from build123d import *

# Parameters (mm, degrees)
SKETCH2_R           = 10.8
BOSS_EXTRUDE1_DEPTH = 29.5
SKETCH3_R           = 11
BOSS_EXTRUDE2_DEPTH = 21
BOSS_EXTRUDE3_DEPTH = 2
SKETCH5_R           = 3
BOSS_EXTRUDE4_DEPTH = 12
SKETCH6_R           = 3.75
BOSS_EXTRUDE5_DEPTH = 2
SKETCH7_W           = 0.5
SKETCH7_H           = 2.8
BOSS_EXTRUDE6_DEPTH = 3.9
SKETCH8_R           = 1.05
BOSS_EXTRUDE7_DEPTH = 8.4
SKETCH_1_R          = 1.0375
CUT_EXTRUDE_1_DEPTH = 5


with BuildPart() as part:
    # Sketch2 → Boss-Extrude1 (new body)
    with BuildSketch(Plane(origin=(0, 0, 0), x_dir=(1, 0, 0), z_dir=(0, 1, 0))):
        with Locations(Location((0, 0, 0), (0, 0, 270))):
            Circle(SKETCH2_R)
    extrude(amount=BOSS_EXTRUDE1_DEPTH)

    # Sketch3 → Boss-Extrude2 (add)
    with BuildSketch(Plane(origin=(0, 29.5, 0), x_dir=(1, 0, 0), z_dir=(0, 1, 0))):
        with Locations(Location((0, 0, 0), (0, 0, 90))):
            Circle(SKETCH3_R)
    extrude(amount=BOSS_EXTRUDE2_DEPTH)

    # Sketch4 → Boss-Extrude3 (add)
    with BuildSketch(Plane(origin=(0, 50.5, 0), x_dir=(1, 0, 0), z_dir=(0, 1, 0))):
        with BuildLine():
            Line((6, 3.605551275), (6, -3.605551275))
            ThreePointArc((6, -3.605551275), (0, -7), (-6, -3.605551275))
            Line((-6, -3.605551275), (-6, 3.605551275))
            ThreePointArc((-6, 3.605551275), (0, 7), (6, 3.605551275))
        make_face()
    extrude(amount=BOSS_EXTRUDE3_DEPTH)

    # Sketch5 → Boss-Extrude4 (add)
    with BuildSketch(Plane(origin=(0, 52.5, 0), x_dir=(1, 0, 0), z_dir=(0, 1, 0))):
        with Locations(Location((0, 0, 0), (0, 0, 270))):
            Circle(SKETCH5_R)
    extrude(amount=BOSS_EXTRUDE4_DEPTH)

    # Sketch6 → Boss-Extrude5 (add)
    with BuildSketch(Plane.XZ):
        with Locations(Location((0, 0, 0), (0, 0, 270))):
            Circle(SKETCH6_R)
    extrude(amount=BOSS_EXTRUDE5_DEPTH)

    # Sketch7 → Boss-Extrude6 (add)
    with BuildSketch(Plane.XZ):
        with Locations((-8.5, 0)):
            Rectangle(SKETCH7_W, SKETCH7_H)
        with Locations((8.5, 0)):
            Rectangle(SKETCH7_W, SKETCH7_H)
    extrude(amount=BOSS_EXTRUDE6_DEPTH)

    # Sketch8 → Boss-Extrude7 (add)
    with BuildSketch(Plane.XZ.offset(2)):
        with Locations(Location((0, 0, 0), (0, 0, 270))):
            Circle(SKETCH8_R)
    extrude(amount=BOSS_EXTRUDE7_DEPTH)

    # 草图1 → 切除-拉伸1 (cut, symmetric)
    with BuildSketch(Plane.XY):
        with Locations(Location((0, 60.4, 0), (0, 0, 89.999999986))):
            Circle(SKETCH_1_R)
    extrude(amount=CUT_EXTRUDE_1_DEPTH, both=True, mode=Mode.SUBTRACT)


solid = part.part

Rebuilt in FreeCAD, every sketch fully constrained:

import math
import FreeCAD as App
import Part
import Sketcher
from FreeCAD import Vector


def add_polygon(sketch, points):
    """Adds a closed chain of lines whose ends are joined by coincident constraints."""
    first, n = sketch.GeometryCount, len(points)
    for a, b in zip(points, points[1:] + points[:1]):
        sketch.addGeometry(Part.LineSegment(App.Vector(*a, 0), App.Vector(*b, 0)), False)
    for i in range(n):
        sketch.addConstraint(Sketcher.Constraint("Coincident", first + i, 2, first + (i + 1) % n, 1))

doc = App.newDocument("Part")
params = doc.addObject("Spreadsheet::Sheet", "Params")
for row, (alias, value) in enumerate([
    ("sketch1_diameter", "21.6 mm"),
    ("pad1_length", "29.5 mm"),
    ("sketch2_diameter", "22 mm"),
    ("pad2_length", "21 mm"),
    ("sketch3_radius", "7 mm"),
    ("pad3_length", "2 mm"),
    ("sketch4_diameter", "6 mm"),
    ("pad4_length", "12 mm"),
    ("sketch5_diameter", "7.5 mm"),
    ("pad5_length", "2 mm"),
    ("sketch6_width", "0.5 mm"),
    ("sketch6_height", "2.8 mm"),
    ("pad6_length", "3.9 mm"),
    ("sketch7_diameter", "2.1 mm"),
    ("pad7_length", "8.4 mm"),
    ("pocket1_length", "10 mm"),
], start=1):
    params.set(f"A{row}", alias)
    params.set(f"B{row}", "=" + value)
    params.setAlias(f"B{row}", alias)

body = doc.addObject("PartDesign::Body", "Body")

sketch1 = body.newObject("Sketcher::SketchObject", "Sketch")
sketch1.AttachmentSupport = (doc.getObject("XZ_Plane"), [""])
sketch1.MapMode = "FlatFace"
sketch1.addGeometry(Part.Circle(Vector(0, 0, 0), Vector(0, 0, 1), 11), False)
sketch1.addConstraint([
    Sketcher.Constraint("Coincident", 0, 3, -1, 1),
    Sketcher.Constraint("Diameter", 0, 21.6),
])
sketch1.setExpression("Constraints[1]", "Params.sketch1_diameter")
pad1 = body.newObject("PartDesign::Pad", "Pad")
pad1.Profile = sketch1
pad1.setExpression("Length", "Params.pad1_length")
pad1.Reversed = True

sketch2 = body.newObject("Sketcher::SketchObject", "Sketch001")
sketch2.AttachmentSupport = (doc.getObject("XZ_Plane"), [""])
sketch2.MapMode = "FlatFace"
sketch2.AttachmentOffset = App.Placement(Vector(0, 0, -29.5), App.Rotation())
sketch2.addGeometry(Part.Circle(Vector(0, 0, 0), Vector(0, 0, 1), 11), False)
sketch2.addConstraint([
    Sketcher.Constraint("Coincident", 0, 3, -1, 1),
    Sketcher.Constraint("Diameter", 0, 22.0),
])
sketch2.setExpression("Constraints[1]", "Params.sketch2_diameter")
pad2 = body.newObject("PartDesign::Pad", "Pad001")
pad2.Profile = sketch2
pad2.setExpression("Length", "Params.pad2_length")
pad2.Reversed = True

sketch3 = body.newObject("Sketcher::SketchObject", "Sketch002")
sketch3.AttachmentSupport = (doc.getObject("XZ_Plane"), [""])
sketch3.MapMode = "FlatFace"
sketch3.AttachmentOffset = App.Placement(Vector(0, 0, -50.5), App.Rotation())
sketch3.addGeometry([
    Part.LineSegment(Vector(6, 4, 0), Vector(6, -4, 0)),
    Part.ArcOfCircle(Part.Circle(Vector(0, 0, 0), Vector(0, 0, 1), 7), math.radians(-149), math.radians(-31)),
    Part.LineSegment(Vector(-6, -4, 0), Vector(-6, 4, 0)),
    Part.ArcOfCircle(Part.Circle(Vector(0, 0, 0), Vector(0, 0, 1), 7), math.radians(31), math.radians(149)),
], False)
sketch3.addConstraint([
    Sketcher.Constraint("Coincident", 0, 2, 1, 2),
    Sketcher.Constraint("Coincident", 1, 1, 2, 1),
    Sketcher.Constraint("Coincident", 2, 2, 3, 2),
    Sketcher.Constraint("Coincident", 3, 1, 0, 1),
    Sketcher.Constraint("Vertical", 0),
    Sketcher.Constraint("Vertical", 2),
    Sketcher.Constraint("Coincident", 1, 3, -1, 1),
    Sketcher.Constraint("Coincident", 3, 3, -1, 1),
    Sketcher.Constraint("Equal", 1, 3),
    Sketcher.Constraint("Horizontal", 0, 2, 1, 1),
    Sketcher.Constraint("Radius", 1, 7.0),
    Sketcher.Constraint("DistanceX", -1, 1, 0, 2, 6.0),
])
sketch3.setExpression("Constraints[10]", "Params.sketch3_radius")
pad3 = body.newObject("PartDesign::Pad", "Pad002")
pad3.Profile = sketch3
pad3.setExpression("Length", "Params.pad3_length")
pad3.Reversed = True

sketch4 = body.newObject("Sketcher::SketchObject", "Sketch003")
sketch4.AttachmentSupport = (doc.getObject("XZ_Plane"), [""])
sketch4.MapMode = "FlatFace"
sketch4.AttachmentOffset = App.Placement(Vector(0, 0, -52.5), App.Rotation())
sketch4.addGeometry(Part.Circle(Vector(0, 0, 0), Vector(0, 0, 1), 3), False)
sketch4.addConstraint([
    Sketcher.Constraint("Coincident", 0, 3, -1, 1),
    Sketcher.Constraint("Diameter", 0, 6.0),
])
sketch4.setExpression("Constraints[1]", "Params.sketch4_diameter")
pad4 = body.newObject("PartDesign::Pad", "Pad003")
pad4.Profile = sketch4
pad4.setExpression("Length", "Params.pad4_length")
pad4.Reversed = True

sketch5 = body.newObject("Sketcher::SketchObject", "Sketch004")
sketch5.AttachmentSupport = (doc.getObject("XZ_Plane"), [""])
sketch5.MapMode = "FlatFace"
sketch5.addGeometry(Part.Circle(Vector(0, 0, 0), Vector(0, 0, 1), 3.8), False)
sketch5.addConstraint([
    Sketcher.Constraint("Coincident", 0, 3, -1, 1),
    Sketcher.Constraint("Diameter", 0, 7.5),
])
sketch5.setExpression("Constraints[1]", "Params.sketch5_diameter")
pad5 = body.newObject("PartDesign::Pad", "Pad004")
pad5.Profile = sketch5
pad5.setExpression("Length", "Params.pad5_length")

sketch6 = body.newObject("Sketcher::SketchObject", "Sketch005")
sketch6.AttachmentSupport = (doc.getObject("XZ_Plane"), [""])
sketch6.MapMode = "FlatFace"
add_polygon(sketch6, [(-8.8, 1.4), (-8.8, -1.4), (-8.2, -1.4), (-8.2, 1.4)])
add_polygon(sketch6, [(8.2, 1.4), (8.2, -1.4), (8.8, -1.4), (8.8, 1.4)])
sketch6.addConstraint([
    Sketcher.Constraint("Vertical", 0),
    Sketcher.Constraint("Horizontal", 1),
    Sketcher.Constraint("Vertical", 2),
    Sketcher.Constraint("Horizontal", 3),
    Sketcher.Constraint("Vertical", 4),
    Sketcher.Constraint("Horizontal", 5),
    Sketcher.Constraint("Vertical", 6),
    Sketcher.Constraint("Horizontal", 7),
    Sketcher.Constraint("Symmetric", 2, 2, 4, 2, -1, 1),
    Sketcher.Constraint("Symmetric", 0, 2, 6, 2, -1, 1),
    Sketcher.Constraint("Horizontal", 1, 2, 4, 2),
    Sketcher.Constraint("DistanceX", 1, 1, 1, 2, 0.5),
    Sketcher.Constraint("DistanceY", 0, 2, 0, 1, 2.8),
    Sketcher.Constraint("DistanceX", 0, 2, 4, 2, 17.0),
])
sketch6.setExpression("Constraints[19]", "Params.sketch6_width")
sketch6.setExpression("Constraints[20]", "Params.sketch6_height")
pad6 = body.newObject("PartDesign::Pad", "Pad005")
pad6.Profile = sketch6
pad6.setExpression("Length", "Params.pad6_length")

sketch7 = body.newObject("Sketcher::SketchObject", "Sketch006")
sketch7.AttachmentSupport = (doc.getObject("XZ_Plane"), [""])
sketch7.MapMode = "FlatFace"
sketch7.AttachmentOffset = App.Placement(Vector(0, 0, 2), App.Rotation())
sketch7.addGeometry(Part.Circle(Vector(0, 0, 0), Vector(0, 0, 1), 1.1), False)
sketch7.addConstraint([
    Sketcher.Constraint("Coincident", 0, 3, -1, 1),
    Sketcher.Constraint("Diameter", 0, 2.1),
])
sketch7.setExpression("Constraints[1]", "Params.sketch7_diameter")
pad7 = body.newObject("PartDesign::Pad", "Pad006")
pad7.Profile = sketch7
pad7.setExpression("Length", "Params.pad7_length")

sketch8 = body.newObject("Sketcher::SketchObject", "Sketch007")
sketch8.AttachmentSupport = (doc.getObject("XY_Plane"), [""])
sketch8.MapMode = "FlatFace"
sketch8.addGeometry(Part.Circle(Vector(0, 60.4, 0), Vector(0, 0, 1), 1), False)
sketch8.addConstraint([
    Sketcher.Constraint("PointOnObject", 0, 3, -2),
    Sketcher.Constraint("Diameter", 0, 2.075),
    Sketcher.Constraint("DistanceY", -1, 1, 0, 3, 60.4),
])
pocket1 = body.newObject("PartDesign::Pocket", "Pocket")
pocket1.Profile = sketch8
pocket1.setExpression("Length", "Params.pocket1_length")
pocket1.Midplane = True

doc.recompute()
